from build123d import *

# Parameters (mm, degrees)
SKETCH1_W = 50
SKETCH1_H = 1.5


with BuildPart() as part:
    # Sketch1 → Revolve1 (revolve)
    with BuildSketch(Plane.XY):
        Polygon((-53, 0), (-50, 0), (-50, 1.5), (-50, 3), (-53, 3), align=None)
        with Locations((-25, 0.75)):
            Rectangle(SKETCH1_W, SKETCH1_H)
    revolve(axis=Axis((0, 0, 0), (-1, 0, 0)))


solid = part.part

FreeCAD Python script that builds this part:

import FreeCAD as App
import Part
import Sketcher

V = App.Vector
Q = App.Units.Quantity

doc = App.newDocument("Part")
params = doc.addObject("Spreadsheet::Sheet", "Params")
for row, (alias, value) in enumerate([
    ("sketch1_width", "53 mm"),
    ("sketch1_width2", "50 mm"),
    ("revolution_angle", "360 deg"),
], start=1):
    params.set(f"A{row}", alias)
    params.set(f"B{row}", "=" + value)
    params.setAlias(f"B{row}", alias)

body = doc.addObject("PartDesign::Body", "Body")

sketch1 = body.newObject("Sketcher::SketchObject", "Sketch")
sketch1.AttachmentSupport = (doc.getObject("XY_Plane"), [""])
sketch1.MapMode = "FlatFace"
sketch1.addGeometry(Part.LineSegment(V(-53, 0, 0), V(0, 0, 0)), False)
sketch1.addGeometry(Part.LineSegment(V(0, 0, 0), V(0, 1.5, 0)), False)
sketch1.addGeometry(Part.LineSegment(V(0, 1.5, 0), V(-50, 1.5, 0)), False)
sketch1.addGeometry(Part.LineSegment(V(-50, 1.5, 0), V(-50, 3, 0)), False)
sketch1.addGeometry(Part.LineSegment(V(-50, 3, 0), V(-53, 3, 0)), False)
sketch1.addGeometry(Part.LineSegment(V(-53, 3, 0), V(-53, 0, 0)), False)
sketch1.addConstraint(Sketcher.Constraint("Coincident", 0, 2, 1, 1))
sketch1.addConstraint(Sketcher.Constraint("Coincident", 1, 2, 2, 1))
sketch1.addConstraint(Sketcher.Constraint("Coincident", 2, 2, 3, 1))
sketch1.addConstraint(Sketcher.Constraint("Coincident", 3, 2, 4, 1))
sketch1.addConstraint(Sketcher.Constraint("Coincident", 4, 2, 5, 1))
sketch1.addConstraint(Sketcher.Constraint("Coincident", 5, 2, 0, 1))
sketch1.addConstraint(Sketcher.Constraint("Horizontal", 0))
sketch1.addConstraint(Sketcher.Constraint("Vertical", 1))
sketch1.addConstraint(Sketcher.Constraint("Horizontal", 2))
sketch1.addConstraint(Sketcher.Constraint("Vertical", 3))
sketch1.addConstraint(Sketcher.Constraint("Horizontal", 4))
sketch1.addConstraint(Sketcher.Constraint("Vertical", 5))
sketch1.addConstraint(Sketcher.Constraint("Coincident", 0, 2, -1, 1))
sketch1.addConstraint(Sketcher.Constraint("Equal", 1, 3))
sketch1.addConstraint(Sketcher.Constraint("Equal", 4, 5))
sketch1.addConstraint(Sketcher.Constraint("DistanceX", 0, 1, 0, 2, Q("53 mm")))
sketch1.addConstraint(Sketcher.Constraint("DistanceX", 2, 2, 2, 1, Q("50 mm")))
sketch1.setExpression("Constraints[15]", "Params.sketch1_width")
sketch1.setExpression("Constraints[16]", "Params.sketch1_width2")
revolution = body.newObject("PartDesign::Revolution", "Revolution")
revolution.Profile = sketch1
revolution.ReferenceAxis = (sketch1, ["H_Axis"])
revolution.setExpression("Angle", "Params.revolution_angle")

doc.recompute()
